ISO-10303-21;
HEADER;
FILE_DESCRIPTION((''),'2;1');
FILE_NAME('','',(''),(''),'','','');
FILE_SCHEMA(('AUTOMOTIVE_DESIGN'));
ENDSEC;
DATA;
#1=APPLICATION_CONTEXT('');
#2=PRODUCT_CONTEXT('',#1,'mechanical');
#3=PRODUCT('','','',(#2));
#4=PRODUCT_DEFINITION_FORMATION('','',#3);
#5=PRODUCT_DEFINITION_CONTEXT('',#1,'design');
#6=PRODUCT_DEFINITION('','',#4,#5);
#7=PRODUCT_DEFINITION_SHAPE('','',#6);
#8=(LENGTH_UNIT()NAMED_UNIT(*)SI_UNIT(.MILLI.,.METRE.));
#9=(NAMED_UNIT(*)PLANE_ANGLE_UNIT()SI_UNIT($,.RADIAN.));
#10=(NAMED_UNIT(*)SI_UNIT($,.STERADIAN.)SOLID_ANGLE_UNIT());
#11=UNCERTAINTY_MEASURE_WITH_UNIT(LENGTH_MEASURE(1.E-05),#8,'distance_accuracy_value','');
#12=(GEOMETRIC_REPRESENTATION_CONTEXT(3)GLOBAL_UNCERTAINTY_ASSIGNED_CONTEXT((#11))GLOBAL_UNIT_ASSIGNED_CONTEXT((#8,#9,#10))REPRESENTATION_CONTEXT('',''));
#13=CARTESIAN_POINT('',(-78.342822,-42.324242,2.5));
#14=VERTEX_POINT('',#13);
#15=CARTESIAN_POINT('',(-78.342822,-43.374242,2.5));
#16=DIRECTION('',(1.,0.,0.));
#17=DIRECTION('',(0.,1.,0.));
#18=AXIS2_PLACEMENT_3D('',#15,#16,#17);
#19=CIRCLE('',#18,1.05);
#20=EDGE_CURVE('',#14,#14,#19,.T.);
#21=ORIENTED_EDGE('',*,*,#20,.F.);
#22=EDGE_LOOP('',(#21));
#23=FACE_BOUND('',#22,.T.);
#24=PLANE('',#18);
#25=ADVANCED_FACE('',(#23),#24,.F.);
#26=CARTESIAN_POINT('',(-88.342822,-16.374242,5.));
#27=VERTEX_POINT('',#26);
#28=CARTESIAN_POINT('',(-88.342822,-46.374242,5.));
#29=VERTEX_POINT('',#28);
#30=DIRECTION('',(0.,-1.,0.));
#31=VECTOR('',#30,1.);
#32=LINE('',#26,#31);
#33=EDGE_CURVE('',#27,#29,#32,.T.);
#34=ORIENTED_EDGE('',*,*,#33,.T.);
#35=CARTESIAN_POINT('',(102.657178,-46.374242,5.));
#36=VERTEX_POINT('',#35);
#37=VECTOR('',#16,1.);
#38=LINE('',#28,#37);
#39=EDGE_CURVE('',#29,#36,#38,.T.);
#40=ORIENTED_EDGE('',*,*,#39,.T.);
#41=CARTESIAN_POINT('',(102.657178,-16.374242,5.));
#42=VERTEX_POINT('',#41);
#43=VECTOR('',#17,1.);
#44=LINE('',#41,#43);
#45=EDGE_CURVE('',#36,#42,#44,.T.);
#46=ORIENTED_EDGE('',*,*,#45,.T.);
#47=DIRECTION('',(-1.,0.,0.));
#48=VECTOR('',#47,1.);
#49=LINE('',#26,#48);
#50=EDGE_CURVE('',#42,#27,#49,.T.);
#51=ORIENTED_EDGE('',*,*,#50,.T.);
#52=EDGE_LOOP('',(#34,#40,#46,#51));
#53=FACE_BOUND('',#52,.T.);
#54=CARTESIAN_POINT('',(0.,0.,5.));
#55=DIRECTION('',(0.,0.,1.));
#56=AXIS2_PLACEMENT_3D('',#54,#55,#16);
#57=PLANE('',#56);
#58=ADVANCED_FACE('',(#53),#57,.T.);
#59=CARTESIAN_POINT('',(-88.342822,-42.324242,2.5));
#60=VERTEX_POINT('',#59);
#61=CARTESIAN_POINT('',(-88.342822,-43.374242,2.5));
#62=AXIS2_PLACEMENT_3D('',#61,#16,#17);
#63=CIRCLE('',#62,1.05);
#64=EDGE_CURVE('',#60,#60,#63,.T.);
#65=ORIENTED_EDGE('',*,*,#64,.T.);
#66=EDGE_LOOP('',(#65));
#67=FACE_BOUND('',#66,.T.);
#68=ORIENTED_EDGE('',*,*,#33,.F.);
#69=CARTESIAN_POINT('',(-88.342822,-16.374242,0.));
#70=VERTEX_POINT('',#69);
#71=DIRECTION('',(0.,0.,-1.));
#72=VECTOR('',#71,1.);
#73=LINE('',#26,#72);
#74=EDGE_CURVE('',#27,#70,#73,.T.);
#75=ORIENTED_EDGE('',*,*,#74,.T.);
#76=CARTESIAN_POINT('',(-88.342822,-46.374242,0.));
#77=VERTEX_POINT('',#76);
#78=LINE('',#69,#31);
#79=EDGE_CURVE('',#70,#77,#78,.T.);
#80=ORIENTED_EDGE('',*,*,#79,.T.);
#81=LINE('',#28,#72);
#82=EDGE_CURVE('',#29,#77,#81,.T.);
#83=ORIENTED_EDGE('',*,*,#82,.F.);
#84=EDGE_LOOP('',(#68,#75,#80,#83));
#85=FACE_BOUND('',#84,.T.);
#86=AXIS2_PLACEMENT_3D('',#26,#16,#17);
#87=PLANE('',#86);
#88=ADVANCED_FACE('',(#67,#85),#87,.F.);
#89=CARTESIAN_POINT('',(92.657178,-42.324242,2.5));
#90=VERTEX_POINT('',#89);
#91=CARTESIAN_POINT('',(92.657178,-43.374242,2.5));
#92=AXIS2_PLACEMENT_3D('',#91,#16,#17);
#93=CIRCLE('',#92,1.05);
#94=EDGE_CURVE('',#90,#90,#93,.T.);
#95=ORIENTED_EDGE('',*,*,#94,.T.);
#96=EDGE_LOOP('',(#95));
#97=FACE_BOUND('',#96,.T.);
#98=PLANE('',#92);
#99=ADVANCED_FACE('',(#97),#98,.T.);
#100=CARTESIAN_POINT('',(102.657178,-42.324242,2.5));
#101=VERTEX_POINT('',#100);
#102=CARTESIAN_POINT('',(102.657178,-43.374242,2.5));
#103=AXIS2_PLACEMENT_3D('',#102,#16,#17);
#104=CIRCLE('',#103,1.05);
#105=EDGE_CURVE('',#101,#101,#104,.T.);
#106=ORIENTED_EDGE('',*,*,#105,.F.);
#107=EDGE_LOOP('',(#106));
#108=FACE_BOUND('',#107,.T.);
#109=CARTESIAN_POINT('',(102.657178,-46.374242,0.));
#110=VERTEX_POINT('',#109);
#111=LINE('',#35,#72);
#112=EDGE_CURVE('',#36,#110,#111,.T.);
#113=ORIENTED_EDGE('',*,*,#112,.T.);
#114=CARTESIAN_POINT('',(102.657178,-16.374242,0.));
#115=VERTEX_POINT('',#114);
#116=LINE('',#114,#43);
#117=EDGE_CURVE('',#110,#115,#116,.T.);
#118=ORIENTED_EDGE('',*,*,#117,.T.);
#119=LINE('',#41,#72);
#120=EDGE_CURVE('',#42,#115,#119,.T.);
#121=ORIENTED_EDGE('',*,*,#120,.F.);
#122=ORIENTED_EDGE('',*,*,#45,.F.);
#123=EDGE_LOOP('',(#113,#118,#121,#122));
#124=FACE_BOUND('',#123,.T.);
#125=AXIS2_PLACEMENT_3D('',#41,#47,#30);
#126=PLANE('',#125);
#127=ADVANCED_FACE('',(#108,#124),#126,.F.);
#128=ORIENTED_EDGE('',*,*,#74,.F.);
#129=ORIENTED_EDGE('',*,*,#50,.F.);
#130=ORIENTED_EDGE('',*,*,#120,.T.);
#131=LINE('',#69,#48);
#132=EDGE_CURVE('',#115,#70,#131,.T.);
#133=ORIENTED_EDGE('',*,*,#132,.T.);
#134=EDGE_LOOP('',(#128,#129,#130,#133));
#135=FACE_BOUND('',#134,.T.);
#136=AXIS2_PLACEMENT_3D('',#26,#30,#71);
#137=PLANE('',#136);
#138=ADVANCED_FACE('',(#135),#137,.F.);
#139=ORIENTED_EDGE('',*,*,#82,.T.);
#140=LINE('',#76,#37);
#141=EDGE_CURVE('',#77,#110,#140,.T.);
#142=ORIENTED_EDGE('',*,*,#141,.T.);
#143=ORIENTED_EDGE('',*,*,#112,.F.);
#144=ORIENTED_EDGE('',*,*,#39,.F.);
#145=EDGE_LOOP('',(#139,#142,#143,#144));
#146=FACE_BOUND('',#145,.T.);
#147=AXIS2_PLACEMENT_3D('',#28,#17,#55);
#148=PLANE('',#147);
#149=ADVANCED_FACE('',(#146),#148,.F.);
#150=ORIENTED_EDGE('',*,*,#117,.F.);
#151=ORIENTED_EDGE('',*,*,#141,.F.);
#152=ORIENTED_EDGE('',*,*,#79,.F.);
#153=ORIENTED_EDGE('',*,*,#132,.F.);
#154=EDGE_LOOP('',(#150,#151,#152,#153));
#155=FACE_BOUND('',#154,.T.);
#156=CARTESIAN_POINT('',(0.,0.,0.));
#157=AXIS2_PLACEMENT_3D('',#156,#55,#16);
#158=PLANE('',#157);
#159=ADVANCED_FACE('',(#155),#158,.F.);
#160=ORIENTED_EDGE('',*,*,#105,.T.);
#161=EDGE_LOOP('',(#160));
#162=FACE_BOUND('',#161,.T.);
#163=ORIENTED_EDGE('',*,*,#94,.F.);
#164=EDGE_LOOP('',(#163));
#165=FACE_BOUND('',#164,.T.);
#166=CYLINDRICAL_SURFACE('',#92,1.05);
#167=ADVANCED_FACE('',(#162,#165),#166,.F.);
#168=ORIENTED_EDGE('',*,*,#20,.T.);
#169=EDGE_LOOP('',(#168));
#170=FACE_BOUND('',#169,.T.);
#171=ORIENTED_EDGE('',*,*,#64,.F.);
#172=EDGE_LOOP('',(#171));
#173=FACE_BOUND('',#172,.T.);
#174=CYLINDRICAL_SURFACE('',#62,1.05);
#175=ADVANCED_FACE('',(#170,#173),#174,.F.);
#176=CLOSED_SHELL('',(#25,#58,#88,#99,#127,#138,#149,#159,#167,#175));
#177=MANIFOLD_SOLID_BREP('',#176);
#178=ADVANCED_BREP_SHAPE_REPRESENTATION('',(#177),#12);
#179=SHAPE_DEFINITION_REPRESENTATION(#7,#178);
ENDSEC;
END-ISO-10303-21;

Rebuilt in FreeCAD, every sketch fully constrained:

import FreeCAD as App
import Part
import Sketcher

V = App.Vector


def add_polygon(sketch, points):
    """Adds a closed chain of lines whose ends are joined by coincident constraints."""
    first, n = sketch.GeometryCount, len(points)
    for a, b in zip(points, points[1:] + points[:1]):
        sketch.addGeometry(Part.LineSegment(App.Vector(*a, 0), App.Vector(*b, 0)), False)
    for i in range(n):
        sketch.addConstraint(Sketcher.Constraint("Coincident", first + i, 2, first + (i + 1) % n, 1))

doc = App.newDocument("Part")
body = doc.addObject("PartDesign::Body", "Body")

# Sketch on XY plane
sketch1 = body.newObject("Sketcher::SketchObject", "Sketch")
sketch1.AttachmentSupport = (doc.getObject("XY_Plane"), [""])
sketch1.MapMode = "FlatFace"
add_polygon(sketch1, [(-88, -16), (-88, -46), (103, -46), (103, -16)])  # lines 0-3
sketch1.addConstraint([
    Sketcher.Constraint("Vertical", 0),
    Sketcher.Constraint("Horizontal", 1),
    Sketcher.Constraint("Vertical", 2),
    Sketcher.Constraint("Horizontal", 3),
    Sketcher.Constraint("DistanceX", 1, 1, 1, 2, 191.0),
    Sketcher.Constraint("DistanceY", 0, 2, 0, 1, 30.0),
    Sketcher.Constraint("DistanceX", 0, 2, -1, 1, 88.342822),
    Sketcher.Constraint("DistanceY", 0, 2, -1, 1, 46.374242),
])
pad1 = body.newObject("PartDesign::Pad", "Pad")
pad1.Profile = sketch1
pad1.Length = 5

# Sketch on YZ plane
sketch2 = body.newObject("Sketcher::SketchObject", "Sketch001")
sketch2.AttachmentSupport = (doc.getObject("YZ_Plane"), [""])
sketch2.MapMode = "FlatFace"
sketch2.AttachmentOffset = App.Placement(V(0, 0, 102.657178), App.Rotation())
sketch2.addGeometry(Part.Circle(V(-43.4, 2.5, 0), V(0, 0, 1), 1.1), False)
sketch2.addConstraint([
    Sketcher.Constraint("Diameter", 0, 2.1),
    Sketcher.Constraint("DistanceY", -1, 1, 0, 3, 2.5),
    Sketcher.Constraint("DistanceX", 0, 3, -1, 1, 43.374242),
])
pocket1 = body.newObject("PartDesign::Pocket", "Pocket")
pocket1.Profile = sketch2
pocket1.Length = 10
doc.recompute()

linearpattern = body.newObject("PartDesign::LinearPattern", "LinearPattern")
linearpattern.Originals = [pocket1]
linearpattern.Direction = (doc.getObject("X_Axis"), [""])
linearpattern.Mode = "offset"
linearpattern.Offset = 181
linearpattern.Occurrences = 2
linearpattern.Reversed = True
body.Tip = linearpattern

doc.recompute()
